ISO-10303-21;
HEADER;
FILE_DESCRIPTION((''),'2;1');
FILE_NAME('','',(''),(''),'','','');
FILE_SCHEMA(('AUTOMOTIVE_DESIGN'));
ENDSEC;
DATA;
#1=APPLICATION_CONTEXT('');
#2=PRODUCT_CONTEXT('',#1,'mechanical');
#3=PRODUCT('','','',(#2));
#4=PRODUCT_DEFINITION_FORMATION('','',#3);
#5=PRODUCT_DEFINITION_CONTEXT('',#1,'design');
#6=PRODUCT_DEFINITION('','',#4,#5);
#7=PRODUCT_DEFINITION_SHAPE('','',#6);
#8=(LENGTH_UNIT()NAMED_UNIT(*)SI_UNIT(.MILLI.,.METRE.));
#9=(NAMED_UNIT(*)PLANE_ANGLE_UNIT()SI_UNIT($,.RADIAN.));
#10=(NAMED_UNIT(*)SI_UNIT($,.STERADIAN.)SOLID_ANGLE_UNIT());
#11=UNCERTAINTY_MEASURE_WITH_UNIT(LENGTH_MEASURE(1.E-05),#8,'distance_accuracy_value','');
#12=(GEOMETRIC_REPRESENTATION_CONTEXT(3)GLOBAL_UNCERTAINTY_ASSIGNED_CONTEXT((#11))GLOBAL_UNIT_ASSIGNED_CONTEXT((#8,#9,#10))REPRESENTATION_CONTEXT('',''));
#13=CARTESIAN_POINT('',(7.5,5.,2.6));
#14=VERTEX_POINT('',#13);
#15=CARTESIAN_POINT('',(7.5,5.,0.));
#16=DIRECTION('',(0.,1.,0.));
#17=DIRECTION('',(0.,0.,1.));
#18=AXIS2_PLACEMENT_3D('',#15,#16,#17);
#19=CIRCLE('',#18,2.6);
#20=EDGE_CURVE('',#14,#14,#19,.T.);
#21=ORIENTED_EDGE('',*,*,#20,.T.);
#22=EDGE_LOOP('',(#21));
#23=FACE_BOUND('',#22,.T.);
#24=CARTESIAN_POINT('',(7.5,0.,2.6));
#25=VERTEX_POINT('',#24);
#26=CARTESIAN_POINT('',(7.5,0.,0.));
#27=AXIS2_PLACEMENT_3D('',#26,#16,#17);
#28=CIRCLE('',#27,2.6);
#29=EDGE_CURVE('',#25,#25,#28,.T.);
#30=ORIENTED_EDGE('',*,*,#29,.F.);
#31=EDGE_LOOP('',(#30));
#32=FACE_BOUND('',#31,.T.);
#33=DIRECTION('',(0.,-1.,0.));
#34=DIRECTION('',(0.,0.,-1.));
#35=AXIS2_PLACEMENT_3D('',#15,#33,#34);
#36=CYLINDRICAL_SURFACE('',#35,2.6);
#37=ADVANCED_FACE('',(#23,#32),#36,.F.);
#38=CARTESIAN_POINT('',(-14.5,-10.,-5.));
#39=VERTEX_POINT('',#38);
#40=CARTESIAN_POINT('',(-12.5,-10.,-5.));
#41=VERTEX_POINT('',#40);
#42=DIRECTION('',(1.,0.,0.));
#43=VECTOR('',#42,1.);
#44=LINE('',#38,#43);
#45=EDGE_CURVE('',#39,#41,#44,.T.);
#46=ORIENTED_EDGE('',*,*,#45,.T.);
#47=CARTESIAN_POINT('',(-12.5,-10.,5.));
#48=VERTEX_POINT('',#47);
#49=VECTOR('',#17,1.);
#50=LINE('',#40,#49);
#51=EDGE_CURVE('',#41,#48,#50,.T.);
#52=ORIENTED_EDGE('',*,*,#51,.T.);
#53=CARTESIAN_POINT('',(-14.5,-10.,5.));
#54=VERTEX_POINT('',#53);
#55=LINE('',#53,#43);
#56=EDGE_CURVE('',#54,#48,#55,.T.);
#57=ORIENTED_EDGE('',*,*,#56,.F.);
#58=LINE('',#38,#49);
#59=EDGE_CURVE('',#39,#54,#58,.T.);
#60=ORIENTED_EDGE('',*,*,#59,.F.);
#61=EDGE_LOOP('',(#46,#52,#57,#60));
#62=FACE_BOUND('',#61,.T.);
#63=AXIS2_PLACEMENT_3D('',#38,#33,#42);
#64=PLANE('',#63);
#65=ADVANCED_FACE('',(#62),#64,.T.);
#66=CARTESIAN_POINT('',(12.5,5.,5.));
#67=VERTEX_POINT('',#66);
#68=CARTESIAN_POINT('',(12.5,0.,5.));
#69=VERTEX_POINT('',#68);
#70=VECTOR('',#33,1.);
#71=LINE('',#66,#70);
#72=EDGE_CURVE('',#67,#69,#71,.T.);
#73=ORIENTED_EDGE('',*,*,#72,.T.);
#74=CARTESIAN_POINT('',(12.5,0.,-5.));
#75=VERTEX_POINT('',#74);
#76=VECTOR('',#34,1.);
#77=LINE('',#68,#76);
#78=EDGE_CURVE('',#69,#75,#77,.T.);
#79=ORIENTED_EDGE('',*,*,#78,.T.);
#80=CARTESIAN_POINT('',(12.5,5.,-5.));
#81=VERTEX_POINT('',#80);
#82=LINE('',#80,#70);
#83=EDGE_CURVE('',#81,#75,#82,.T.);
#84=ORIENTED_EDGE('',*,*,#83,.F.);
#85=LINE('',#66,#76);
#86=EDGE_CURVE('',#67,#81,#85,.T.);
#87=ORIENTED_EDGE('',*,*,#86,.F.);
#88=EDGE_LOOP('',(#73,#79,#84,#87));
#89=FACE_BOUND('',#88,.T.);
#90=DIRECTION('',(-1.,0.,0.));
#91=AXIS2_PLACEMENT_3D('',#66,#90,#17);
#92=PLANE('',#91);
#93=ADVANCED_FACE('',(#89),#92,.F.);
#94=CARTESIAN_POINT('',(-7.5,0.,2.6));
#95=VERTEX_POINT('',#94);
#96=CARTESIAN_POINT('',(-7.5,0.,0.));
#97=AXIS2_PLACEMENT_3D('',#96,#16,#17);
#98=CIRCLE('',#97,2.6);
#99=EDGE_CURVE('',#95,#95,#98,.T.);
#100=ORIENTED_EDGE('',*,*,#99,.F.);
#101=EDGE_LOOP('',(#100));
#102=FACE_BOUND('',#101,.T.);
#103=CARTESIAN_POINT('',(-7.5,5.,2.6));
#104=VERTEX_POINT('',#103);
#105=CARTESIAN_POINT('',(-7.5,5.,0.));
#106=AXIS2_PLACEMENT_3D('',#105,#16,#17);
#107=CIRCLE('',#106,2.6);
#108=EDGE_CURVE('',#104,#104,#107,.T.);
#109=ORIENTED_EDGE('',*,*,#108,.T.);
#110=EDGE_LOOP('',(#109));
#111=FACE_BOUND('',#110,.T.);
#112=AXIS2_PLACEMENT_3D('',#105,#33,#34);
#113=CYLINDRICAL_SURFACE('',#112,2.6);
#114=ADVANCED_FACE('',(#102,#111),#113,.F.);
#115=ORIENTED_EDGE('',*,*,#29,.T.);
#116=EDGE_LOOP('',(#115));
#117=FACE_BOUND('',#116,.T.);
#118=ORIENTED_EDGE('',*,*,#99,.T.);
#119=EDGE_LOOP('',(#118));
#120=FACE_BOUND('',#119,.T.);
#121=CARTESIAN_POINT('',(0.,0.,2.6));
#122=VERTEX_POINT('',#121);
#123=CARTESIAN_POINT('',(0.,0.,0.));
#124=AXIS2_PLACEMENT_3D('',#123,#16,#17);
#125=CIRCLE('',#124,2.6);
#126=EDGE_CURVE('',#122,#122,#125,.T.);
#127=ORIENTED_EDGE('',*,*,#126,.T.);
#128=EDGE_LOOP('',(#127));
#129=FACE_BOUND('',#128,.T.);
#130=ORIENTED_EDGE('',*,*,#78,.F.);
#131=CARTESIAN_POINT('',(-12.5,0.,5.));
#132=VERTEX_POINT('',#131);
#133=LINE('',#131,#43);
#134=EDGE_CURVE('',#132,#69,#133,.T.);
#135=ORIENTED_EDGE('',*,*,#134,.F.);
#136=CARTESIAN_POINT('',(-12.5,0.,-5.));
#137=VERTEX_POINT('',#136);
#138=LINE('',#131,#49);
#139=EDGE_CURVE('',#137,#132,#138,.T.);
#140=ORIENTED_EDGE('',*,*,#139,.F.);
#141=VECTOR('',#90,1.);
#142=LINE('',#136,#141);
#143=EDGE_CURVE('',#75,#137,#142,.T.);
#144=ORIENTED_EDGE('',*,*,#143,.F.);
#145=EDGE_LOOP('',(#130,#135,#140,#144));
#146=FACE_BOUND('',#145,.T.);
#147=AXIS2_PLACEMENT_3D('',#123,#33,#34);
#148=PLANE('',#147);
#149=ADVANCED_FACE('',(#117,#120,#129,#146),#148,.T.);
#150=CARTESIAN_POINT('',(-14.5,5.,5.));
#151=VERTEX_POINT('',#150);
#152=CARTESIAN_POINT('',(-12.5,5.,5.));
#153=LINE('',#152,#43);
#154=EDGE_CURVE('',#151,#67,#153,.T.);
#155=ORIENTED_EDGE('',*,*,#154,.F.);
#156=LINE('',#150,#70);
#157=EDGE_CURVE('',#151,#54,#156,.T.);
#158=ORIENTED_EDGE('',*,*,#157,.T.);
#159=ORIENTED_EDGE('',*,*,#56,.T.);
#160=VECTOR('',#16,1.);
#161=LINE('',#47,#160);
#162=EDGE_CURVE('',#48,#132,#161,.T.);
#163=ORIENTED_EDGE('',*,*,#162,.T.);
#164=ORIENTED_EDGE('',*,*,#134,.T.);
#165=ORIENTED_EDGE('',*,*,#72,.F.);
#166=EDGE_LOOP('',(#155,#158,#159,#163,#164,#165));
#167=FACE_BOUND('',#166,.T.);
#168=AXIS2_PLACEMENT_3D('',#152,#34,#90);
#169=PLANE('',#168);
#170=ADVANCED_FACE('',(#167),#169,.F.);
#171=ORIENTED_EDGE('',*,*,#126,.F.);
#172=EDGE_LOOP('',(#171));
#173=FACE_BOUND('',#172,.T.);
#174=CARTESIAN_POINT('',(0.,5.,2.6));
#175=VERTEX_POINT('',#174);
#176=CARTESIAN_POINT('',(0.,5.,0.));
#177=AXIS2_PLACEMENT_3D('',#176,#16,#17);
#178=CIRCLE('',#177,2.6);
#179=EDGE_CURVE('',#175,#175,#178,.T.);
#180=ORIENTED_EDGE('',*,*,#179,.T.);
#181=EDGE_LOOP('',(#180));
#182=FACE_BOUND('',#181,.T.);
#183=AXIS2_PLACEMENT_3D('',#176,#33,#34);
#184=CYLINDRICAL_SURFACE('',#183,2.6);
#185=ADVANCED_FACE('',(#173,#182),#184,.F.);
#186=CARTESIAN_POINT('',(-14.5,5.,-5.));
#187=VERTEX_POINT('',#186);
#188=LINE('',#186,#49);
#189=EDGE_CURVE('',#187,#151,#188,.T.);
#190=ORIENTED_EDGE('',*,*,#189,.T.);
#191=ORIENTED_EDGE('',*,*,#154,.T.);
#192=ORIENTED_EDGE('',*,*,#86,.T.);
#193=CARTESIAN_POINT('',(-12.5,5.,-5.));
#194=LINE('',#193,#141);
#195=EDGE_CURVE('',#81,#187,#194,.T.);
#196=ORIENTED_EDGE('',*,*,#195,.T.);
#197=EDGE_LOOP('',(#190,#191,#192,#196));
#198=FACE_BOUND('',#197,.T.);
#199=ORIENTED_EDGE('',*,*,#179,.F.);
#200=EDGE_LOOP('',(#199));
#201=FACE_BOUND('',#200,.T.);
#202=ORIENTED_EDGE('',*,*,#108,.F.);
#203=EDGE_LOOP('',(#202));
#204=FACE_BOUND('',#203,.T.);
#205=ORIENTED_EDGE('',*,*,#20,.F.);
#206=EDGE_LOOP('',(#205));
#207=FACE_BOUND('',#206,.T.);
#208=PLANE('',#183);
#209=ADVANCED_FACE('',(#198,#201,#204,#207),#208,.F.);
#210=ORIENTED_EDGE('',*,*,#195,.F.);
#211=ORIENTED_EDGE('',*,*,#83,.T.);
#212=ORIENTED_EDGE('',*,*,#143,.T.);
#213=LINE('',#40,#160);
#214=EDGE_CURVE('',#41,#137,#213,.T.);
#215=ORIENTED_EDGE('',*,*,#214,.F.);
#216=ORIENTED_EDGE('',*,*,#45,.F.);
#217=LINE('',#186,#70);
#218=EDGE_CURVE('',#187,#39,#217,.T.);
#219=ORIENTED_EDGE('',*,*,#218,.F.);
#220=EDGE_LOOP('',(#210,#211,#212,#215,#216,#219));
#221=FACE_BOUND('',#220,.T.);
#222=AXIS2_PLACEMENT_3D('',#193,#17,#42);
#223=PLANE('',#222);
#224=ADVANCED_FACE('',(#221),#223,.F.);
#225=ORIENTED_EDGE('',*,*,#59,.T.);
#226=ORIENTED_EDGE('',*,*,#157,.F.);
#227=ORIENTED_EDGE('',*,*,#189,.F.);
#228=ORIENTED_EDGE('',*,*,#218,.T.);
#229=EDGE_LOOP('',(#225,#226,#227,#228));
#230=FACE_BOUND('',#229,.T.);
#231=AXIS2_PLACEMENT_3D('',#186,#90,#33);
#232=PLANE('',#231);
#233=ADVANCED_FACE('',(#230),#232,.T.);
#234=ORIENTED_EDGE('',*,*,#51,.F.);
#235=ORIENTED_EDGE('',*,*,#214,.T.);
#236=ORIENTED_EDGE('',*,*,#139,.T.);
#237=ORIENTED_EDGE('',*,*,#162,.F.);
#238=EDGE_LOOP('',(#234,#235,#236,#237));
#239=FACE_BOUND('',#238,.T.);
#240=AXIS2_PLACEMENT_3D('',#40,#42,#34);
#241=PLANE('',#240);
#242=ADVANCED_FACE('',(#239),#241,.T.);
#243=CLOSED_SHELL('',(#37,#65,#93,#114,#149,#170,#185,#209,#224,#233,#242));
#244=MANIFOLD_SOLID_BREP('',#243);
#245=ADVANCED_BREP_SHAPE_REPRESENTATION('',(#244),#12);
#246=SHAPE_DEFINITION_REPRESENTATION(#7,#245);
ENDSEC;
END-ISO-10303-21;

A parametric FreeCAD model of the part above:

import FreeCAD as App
import Part
import Sketcher
from FreeCAD import Vector
Q = App.Units.Quantity


def add_polygon(sketch, points):
    """Adds a closed chain of lines whose ends are joined by coincident constraints."""
    first, n = sketch.GeometryCount, len(points)
    for a, b in zip(points, points[1:] + points[:1]):
        sketch.addGeometry(Part.LineSegment(App.Vector(*a, 0), App.Vector(*b, 0)), False)
    for i in range(n):
        sketch.addConstraint(Sketcher.Constraint("Coincident", first + i, 2, first + (i + 1) % n, 1))

doc = App.newDocument("Part")
body = doc.addObject("PartDesign::Body", "Body")

sketch1 = body.newObject("Sketcher::SketchObject", "Sketch")
sketch1.AttachmentSupport = (doc.getObject("XZ_Plane"), [""])
sketch1.MapMode = "FlatFace"
add_polygon(sketch1, [(-12.5, -5), (-12.5, 5), (12.5, 5), (12.5, -5)])
sketch1.addGeometry(Part.Circle(Vector(-7.5, 0, 0), Vector(0, 0, 1), 2.6), False)
sketch1.addGeometry(Part.Circle(Vector(0, 0, 0), Vector(0, 0, 1), 2.6), False)
sketch1.addGeometry(Part.Circle(Vector(7.5, 0, 0), Vector(0, 0, 1), 2.6), False)
sketch1.addConstraint(Sketcher.Constraint("Vertical", 0))
sketch1.addConstraint(Sketcher.Constraint("Horizontal", 1))
sketch1.addConstraint(Sketcher.Constraint("Vertical", 2))
sketch1.addConstraint(Sketcher.Constraint("Horizontal", 3))
sketch1.addConstraint(Sketcher.Constraint("Coincident", 5, 3, -1, 1))
sketch1.addConstraint(Sketcher.Constraint("Equal", 4, 5))
sketch1.addConstraint(Sketcher.Constraint("Equal", 5, 6))
sketch1.addConstraint(Sketcher.Constraint("Symmetric", 4, 3, 6, 3, -1, 1))
sketch1.addConstraint(Sketcher.Constraint("Symmetric", 0, 2, 2, 2, -1, 1))
sketch1.addConstraint(Sketcher.Constraint("PointOnObject", 4, 3, -1))
sketch1.addConstraint(Sketcher.Constraint("Diameter", 4, Q("5.2 mm")))
sketch1.addConstraint(Sketcher.Constraint("DistanceX", 1, 1, 1, 2, Q("25 mm")))
sketch1.addConstraint(Sketcher.Constraint("DistanceY", 0, 1, 0, 2, Q("10 mm")))
sketch1.addConstraint(Sketcher.Constraint("DistanceX", 4, 3, 6, 3, Q("15 mm")))
pad1 = body.newObject("PartDesign::Pad", "Pad")
pad1.Profile = sketch1
pad1.Length = 5
pad1.Reversed = True

sketch2 = body.newObject("Sketcher::SketchObject", "Sketch001")
sketch2.AttachmentSupport = (doc.getObject("XY_Plane"), [""])
sketch2.MapMode = "FlatFace"
sketch2.AttachmentOffset = App.Placement(Vector(0, 0, 5), App.Rotation())
add_polygon(sketch2, [(-14.5, 5), (-14.5, -10), (-12.5, -10), (-12.5, 5)])
sketch2.addConstraint(Sketcher.Constraint("Vertical", 0))
sketch2.addConstraint(Sketcher.Constraint("Horizontal", 1))
sketch2.addConstraint(Sketcher.Constraint("Vertical", 2))
sketch2.addConstraint(Sketcher.Constraint("Horizontal", 3))
sketch2.addConstraint(Sketcher.Constraint("DistanceX", 1, 1, 1, 2, Q("2 mm")))
sketch2.addConstraint(Sketcher.Constraint("DistanceY", 0, 2, 0, 1, Q("15 mm")))
sketch2.addConstraint(Sketcher.Constraint("DistanceY", 0, 2, -1, 1, Q("10 mm")))
sketch2.addConstraint(Sketcher.Constraint("DistanceX", 0, 2, -1, 1, Q("14.5 mm")))
pad2 = body.newObject("PartDesign::Pad", "Pad001")
pad2.Profile = sketch2
pad2.Length = 10
pad2.Reversed = True

doc.recompute()
